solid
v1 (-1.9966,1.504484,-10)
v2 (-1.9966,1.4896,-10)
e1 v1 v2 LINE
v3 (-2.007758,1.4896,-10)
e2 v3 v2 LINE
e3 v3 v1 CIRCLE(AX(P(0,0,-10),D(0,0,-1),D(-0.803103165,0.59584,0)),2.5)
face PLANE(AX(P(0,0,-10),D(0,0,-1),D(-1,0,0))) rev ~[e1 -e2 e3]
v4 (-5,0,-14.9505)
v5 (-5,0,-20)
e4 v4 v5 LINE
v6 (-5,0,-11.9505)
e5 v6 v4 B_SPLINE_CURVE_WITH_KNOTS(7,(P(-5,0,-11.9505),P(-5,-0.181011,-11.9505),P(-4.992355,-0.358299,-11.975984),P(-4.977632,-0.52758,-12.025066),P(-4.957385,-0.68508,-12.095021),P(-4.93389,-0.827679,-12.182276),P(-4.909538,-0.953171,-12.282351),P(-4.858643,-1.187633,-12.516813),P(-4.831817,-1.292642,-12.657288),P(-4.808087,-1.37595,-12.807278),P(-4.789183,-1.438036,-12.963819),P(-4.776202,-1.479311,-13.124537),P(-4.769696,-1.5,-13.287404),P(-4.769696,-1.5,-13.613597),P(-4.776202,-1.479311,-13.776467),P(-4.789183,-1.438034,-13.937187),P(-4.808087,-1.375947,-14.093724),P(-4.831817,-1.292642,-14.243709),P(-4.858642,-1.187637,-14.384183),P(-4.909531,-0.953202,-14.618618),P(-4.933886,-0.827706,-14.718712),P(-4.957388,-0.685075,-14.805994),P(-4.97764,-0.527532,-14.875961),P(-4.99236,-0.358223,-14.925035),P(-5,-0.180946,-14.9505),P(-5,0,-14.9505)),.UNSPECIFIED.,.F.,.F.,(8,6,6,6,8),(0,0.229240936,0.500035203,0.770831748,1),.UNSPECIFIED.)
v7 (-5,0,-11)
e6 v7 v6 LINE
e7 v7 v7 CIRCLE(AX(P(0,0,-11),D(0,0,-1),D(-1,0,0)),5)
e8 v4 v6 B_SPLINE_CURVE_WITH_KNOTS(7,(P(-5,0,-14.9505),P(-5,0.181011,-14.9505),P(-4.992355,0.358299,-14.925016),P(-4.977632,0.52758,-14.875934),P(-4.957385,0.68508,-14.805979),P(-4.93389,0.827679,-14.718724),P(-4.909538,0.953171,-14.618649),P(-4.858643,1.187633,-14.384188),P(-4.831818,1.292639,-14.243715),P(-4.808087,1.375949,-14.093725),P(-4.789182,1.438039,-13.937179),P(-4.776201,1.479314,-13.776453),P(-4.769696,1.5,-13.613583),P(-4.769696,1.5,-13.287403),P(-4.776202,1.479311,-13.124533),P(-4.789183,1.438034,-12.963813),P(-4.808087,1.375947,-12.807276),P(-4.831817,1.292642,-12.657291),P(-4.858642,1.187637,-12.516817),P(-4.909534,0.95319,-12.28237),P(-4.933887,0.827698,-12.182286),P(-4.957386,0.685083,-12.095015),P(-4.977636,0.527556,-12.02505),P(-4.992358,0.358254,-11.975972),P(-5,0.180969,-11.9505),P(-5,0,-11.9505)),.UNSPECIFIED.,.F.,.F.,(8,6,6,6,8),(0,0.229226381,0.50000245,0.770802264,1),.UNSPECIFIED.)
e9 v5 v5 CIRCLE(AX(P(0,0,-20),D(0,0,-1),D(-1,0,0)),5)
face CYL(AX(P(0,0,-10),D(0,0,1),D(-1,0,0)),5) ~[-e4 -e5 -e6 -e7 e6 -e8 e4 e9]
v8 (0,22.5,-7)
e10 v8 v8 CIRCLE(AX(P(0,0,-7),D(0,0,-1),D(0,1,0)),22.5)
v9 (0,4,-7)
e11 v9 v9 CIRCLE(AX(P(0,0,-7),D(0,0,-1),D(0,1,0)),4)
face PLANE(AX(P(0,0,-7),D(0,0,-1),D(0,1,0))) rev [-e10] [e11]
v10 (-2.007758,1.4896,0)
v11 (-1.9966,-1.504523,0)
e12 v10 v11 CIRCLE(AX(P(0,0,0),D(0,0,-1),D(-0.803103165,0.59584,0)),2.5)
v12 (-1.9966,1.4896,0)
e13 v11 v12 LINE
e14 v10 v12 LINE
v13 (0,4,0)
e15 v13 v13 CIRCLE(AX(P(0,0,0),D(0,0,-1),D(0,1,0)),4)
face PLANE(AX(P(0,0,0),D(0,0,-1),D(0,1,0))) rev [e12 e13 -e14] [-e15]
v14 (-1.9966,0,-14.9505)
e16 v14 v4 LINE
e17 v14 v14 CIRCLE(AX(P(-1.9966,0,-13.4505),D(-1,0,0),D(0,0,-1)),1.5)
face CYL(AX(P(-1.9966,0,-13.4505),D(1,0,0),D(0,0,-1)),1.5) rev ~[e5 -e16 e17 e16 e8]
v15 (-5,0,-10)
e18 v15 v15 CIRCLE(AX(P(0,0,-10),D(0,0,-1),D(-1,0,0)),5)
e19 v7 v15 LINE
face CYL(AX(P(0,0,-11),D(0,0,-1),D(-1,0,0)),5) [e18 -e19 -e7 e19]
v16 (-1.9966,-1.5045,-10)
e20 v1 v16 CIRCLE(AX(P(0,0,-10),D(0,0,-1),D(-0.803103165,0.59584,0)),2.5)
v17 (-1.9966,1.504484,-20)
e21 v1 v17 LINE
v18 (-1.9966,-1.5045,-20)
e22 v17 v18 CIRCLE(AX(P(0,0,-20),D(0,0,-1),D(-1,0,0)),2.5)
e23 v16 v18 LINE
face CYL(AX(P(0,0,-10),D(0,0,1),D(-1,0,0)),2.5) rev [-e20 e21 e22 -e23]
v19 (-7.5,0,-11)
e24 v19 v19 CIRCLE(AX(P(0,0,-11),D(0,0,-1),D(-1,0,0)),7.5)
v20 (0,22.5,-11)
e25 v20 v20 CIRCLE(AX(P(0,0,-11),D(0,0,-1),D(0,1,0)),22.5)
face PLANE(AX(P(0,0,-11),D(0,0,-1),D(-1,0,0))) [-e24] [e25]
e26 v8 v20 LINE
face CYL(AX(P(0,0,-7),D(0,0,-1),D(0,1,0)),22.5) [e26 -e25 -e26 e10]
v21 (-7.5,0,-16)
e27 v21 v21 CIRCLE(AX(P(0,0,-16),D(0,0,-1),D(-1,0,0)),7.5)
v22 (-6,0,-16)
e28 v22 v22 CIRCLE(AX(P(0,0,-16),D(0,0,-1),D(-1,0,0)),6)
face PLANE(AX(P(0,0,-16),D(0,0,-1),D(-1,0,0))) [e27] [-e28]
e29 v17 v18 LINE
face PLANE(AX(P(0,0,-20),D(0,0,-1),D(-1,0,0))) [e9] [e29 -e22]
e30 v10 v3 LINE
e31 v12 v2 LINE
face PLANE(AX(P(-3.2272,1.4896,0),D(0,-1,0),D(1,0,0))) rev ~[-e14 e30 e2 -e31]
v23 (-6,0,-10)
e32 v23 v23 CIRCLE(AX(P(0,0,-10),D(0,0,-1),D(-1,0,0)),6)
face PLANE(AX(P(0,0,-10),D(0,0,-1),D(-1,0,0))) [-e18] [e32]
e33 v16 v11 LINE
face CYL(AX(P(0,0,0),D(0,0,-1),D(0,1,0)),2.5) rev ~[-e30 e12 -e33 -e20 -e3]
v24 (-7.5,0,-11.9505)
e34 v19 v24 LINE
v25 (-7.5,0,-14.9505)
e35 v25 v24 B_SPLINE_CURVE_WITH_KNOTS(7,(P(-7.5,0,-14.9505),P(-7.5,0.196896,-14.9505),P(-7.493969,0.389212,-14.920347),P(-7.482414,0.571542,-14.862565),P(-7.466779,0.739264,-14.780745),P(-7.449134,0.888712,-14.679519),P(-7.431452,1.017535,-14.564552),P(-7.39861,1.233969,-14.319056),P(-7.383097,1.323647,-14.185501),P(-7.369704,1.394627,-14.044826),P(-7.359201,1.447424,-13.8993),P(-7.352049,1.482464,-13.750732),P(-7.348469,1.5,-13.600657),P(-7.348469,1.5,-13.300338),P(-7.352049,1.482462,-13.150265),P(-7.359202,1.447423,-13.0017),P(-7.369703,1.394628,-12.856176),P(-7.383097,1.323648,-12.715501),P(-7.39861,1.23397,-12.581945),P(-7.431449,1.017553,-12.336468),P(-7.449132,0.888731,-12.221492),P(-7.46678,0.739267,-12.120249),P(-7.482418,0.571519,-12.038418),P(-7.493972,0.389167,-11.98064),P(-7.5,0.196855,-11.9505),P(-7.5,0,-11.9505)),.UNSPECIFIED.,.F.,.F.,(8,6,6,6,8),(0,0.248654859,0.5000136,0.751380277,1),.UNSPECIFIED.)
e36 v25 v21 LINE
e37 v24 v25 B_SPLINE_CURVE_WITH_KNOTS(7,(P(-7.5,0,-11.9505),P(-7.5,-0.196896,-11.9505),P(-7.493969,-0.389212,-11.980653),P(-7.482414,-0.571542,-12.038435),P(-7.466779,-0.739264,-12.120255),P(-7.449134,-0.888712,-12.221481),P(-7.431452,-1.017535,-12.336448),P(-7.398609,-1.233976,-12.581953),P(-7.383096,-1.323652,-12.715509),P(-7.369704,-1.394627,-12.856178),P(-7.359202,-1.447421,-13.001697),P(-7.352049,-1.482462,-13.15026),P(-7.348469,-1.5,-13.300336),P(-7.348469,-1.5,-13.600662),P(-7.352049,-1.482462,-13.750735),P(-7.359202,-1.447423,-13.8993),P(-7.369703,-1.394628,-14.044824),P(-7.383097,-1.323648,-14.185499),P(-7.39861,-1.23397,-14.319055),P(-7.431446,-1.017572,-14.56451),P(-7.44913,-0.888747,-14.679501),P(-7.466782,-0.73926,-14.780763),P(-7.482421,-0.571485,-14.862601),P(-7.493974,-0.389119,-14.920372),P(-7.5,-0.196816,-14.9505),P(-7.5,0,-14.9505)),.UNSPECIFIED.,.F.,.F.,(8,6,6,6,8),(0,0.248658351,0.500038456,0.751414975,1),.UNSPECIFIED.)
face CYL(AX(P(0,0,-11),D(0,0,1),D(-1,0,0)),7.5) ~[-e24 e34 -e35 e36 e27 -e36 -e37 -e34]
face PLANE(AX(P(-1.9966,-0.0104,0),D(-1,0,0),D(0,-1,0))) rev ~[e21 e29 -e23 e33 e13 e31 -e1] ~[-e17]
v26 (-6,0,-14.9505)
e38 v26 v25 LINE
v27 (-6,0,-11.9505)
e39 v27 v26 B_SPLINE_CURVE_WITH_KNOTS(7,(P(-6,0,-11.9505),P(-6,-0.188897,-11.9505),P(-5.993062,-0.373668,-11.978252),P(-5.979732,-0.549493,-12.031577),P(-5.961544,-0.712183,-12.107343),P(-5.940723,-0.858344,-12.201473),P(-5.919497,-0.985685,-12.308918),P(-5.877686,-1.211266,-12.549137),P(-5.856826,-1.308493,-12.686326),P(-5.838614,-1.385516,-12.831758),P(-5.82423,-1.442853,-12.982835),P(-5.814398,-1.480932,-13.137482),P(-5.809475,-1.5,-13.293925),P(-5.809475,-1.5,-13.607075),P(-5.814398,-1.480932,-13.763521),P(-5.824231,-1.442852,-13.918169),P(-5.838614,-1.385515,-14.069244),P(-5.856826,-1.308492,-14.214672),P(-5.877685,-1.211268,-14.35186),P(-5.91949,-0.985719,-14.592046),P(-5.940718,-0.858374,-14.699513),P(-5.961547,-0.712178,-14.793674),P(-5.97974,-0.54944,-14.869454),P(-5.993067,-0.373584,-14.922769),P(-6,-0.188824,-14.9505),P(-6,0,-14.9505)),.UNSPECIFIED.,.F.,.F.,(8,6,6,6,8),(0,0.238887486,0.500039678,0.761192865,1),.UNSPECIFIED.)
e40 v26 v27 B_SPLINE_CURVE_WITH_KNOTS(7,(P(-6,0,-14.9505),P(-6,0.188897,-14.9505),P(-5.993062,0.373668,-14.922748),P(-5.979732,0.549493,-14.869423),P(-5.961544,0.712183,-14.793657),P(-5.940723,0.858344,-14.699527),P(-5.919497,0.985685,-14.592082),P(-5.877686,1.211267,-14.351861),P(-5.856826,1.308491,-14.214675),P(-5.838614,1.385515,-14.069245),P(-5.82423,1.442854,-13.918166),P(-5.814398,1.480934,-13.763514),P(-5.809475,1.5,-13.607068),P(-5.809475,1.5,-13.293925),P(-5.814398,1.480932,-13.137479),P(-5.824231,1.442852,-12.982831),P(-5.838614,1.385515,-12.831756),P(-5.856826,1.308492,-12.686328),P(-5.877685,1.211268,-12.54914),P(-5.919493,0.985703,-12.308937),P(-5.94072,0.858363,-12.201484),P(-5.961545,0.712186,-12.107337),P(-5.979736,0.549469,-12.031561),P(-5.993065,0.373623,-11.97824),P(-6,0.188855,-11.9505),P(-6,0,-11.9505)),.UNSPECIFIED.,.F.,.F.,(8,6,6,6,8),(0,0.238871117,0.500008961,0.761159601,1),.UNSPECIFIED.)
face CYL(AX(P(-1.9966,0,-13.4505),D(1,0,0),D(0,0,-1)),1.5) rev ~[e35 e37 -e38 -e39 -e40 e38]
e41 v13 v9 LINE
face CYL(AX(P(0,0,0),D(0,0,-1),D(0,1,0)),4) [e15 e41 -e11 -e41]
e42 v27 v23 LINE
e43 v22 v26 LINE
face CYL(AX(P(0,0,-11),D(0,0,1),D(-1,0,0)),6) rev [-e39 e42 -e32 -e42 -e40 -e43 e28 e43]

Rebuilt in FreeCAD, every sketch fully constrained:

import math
import FreeCAD as App
import Part
import Sketcher

V = App.Vector
Q = App.Units.Quantity


def add_polygon(sketch, points):
    """Adds a closed chain of lines whose ends are joined by coincident constraints."""
    first, n = sketch.GeometryCount, len(points)
    for a, b in zip(points, points[1:] + points[:1]):
        sketch.addGeometry(Part.LineSegment(App.Vector(*a, 0), App.Vector(*b, 0)), False)
    for i in range(n):
        sketch.addConstraint(Sketcher.Constraint("Coincident", first + i, 2, first + (i + 1) % n, 1))

doc = App.newDocument("Part")
body = doc.addObject("PartDesign::Body", "Body")
body.AllowCompound = True

# Sketch on YZ plane
sketch1 = doc.addObject("Sketcher::SketchObject", "Sketch")
body.addObject(sketch1)
sketch1.AttachmentSupport = (doc.YZ_Plane, [""])
sketch1.MapMode = "FlatFace"
add_polygon(sketch1, [(4, 0), (2.5, 0), (2.5, -82), (4, -82), (4, -75), (22.5, -75), (22.5, -71), (9.5, -71), (9.5, -68), (6.5, -68), (6.5, -14), (9.5, -14), (9.5, -11), (22.5, -11), (22.5, -7), (4, -7)])  # lines 0-15
sketch1.addConstraint(Sketcher.Constraint("Horizontal", 0))
sketch1.addConstraint(Sketcher.Constraint("Vertical", 1))
sketch1.addConstraint(Sketcher.Constraint("Horizontal", 2))
sketch1.addConstraint(Sketcher.Constraint("Vertical", 3))
sketch1.addConstraint(Sketcher.Constraint("Horizontal", 4))
sketch1.addConstraint(Sketcher.Constraint("Vertical", 5))
sketch1.addConstraint(Sketcher.Constraint("Horizontal", 6))
sketch1.addConstraint(Sketcher.Constraint("Vertical", 7))
sketch1.addConstraint(Sketcher.Constraint("Horizontal", 8))
sketch1.addConstraint(Sketcher.Constraint("Vertical", 9))
sketch1.addConstraint(Sketcher.Constraint("Horizontal", 10))
sketch1.addConstraint(Sketcher.Constraint("Vertical", 11))
sketch1.addConstraint(Sketcher.Constraint("Horizontal", 12))
sketch1.addConstraint(Sketcher.Constraint("Vertical", 13))
sketch1.addConstraint(Sketcher.Constraint("Horizontal", 14))
sketch1.addConstraint(Sketcher.Constraint("Vertical", 15))
sketch1.addConstraint(Sketcher.Constraint("PointOnObject", 0, 2, -1))
sketch1.addConstraint(Sketcher.Constraint("Vertical", 7, 2, 10, 2))
sketch1.addConstraint(Sketcher.Constraint("Vertical", 5, 2, 12, 2))
sketch1.addConstraint(Sketcher.Constraint("Vertical", 3, 2, 14, 2))
sketch1.addConstraint(Sketcher.Constraint("Equal", 10, 7))
sketch1.addConstraint(Sketcher.Constraint("Equal", 7, 11))
sketch1.addConstraint(Sketcher.Constraint("Equal", 5, 13))
sketch1.addConstraint(Sketcher.Constraint("Equal", 3, 15))
sketch1.addConstraint(Sketcher.Constraint("DistanceX", 8, 2, 8, 1, Q("3 mm")))
sketch1.addConstraint(Sketcher.Constraint("DistanceY", 3, 1, 3, 2, Q("7 mm")))
sketch1.addConstraint(Sketcher.Constraint("DistanceY", 5, 1, 5, 2, Q("4 mm")))
sketch1.addConstraint(Sketcher.Constraint("DistanceX", -1, 1, 2, 2, Q("4 mm")))
sketch1.addConstraint(Sketcher.Constraint("DistanceX", 1, 2, 4, 2, Q("20 mm")))
sketch1.addConstraint(Sketcher.Constraint("DistanceX", 1, 2, 6, 2, Q("7 mm")))
sketch1.addConstraint(Sketcher.Constraint("DistanceX", -1, 1, 0, 2, Q("2.5 mm")))
sketch1.addConstraint(Sketcher.Constraint("DistanceY", 1, 2, 1, 1, Q("82 mm")))
revolution = doc.addObject("PartDesign::Revolution", "Revolution")
body.addObject(revolution)
revolution.Profile = sketch1
revolution.ReferenceAxis = (sketch1, ["V_Axis"])
revolution.Angle = 360

# Sketch on XZ plane
sketch2 = doc.addObject("Sketcher::SketchObject", "Sketch001")
body.addObject(sketch2)
sketch2.AttachmentSupport = (doc.XZ_Plane, [""])
sketch2.MapMode = "FlatFace"
add_polygon(sketch2, [(0, -60), (0, -64), (-11, -54), (-11, -49)])  # lines 0-3
sketch2.addConstraint(Sketcher.Constraint("Vertical", 0))
sketch2.addConstraint(Sketcher.Constraint("Vertical", 2))
sketch2.addConstraint(Sketcher.Constraint("PointOnObject", 0, 2, -2))
sketch2.addConstraint(Sketcher.Constraint("Parallel", 1, 3))
sketch2.addConstraint(Sketcher.Constraint("DistanceY", 0, 2, 0, 1, Q("5 mm")))
sketch2.addConstraint(Sketcher.Constraint("Distance", 1, Q("15 mm")))
sketch2.addConstraint(Sketcher.Constraint("Angle", 1, Q("135 deg")))
sketch2.addConstraint(Sketcher.Constraint("DistanceY", 0, 2, -1, 1, Q("64.5 mm")))
pocket1 = doc.addObject("PartDesign::Pocket", "Pocket")
body.addObject(pocket1)
pocket1.Profile = sketch2
pocket1.Length = 5
pocket1.Midplane = True

# Sketch on XY plane
sketch3 = doc.addObject("Sketcher::SketchObject", "Sketch002")
body.addObject(sketch3)
sketch3.AttachmentSupport = (doc.XY_Plane, [""])
sketch3.MapMode = "FlatFace"
add_polygon(sketch3, [(-3.2, -1.5), (-2, -1.5), (-2, 1.5), (-3.2, 1.5)])  # lines 0-3
sketch3.addConstraint(Sketcher.Constraint("Horizontal", 0))
sketch3.addConstraint(Sketcher.Constraint("Vertical", 1))
sketch3.addConstraint(Sketcher.Constraint("Horizontal", 2))
sketch3.addConstraint(Sketcher.Constraint("Vertical", 3))
sketch3.addConstraint(Sketcher.Constraint("DistanceY", 1, 1, 1, 2, Q("3 mm")))
sketch3.addConstraint(Sketcher.Constraint("DistanceX", 0, 1, 0, 2, Q("1.2306 mm")))
sketch3.addConstraint(Sketcher.Constraint("DistanceX", 0, 2, -1, 1, Q("1.9966 mm")))
sketch3.addConstraint(Sketcher.Constraint("DistanceY", 0, 2, -1, 1, Q("1.5104 mm")))
pad1 = doc.addObject("PartDesign::Pad", "Pad")
body.addObject(pad1)
pad1.Profile = sketch3
pad1.Length = 26
pad1.Reversed = True

# Sketch on XY plane
sketch4 = doc.addObject("Sketcher::SketchObject", "Sketch003")
body.addObject(sketch4)
sketch4.AttachmentSupport = (doc.XY_Plane, [""])
sketch4.MapMode = "FlatFace"
sketch4.AttachmentOffset = App.Placement(V(0, 0, -14), App.Rotation())
sketch4.addGeometry(Part.Circle(V(0, 0, 0), V(0, 0, 1), 6), False)
sketch4.addConstraint(Sketcher.Constraint("Coincident", 0, 3, -1, 1))
sketch4.addConstraint(Sketcher.Constraint("Diameter", 0, Q("13 mm")))
pocket2 = doc.addObject("PartDesign::Pocket", "Pocket001")
body.addObject(pocket2)
pocket2.Profile = sketch4
pocket2.Length = 4
pocket2.Reversed = True

# Sketch on XY plane
sketch5 = doc.addObject("Sketcher::SketchObject", "Sketch004")
body.addObject(sketch5)
sketch5.AttachmentSupport = (doc.XY_Plane, [""])
sketch5.MapMode = "FlatFace"
sketch5.AttachmentOffset = App.Placement(V(0, 0, -14), App.Rotation())
sketch5.addGeometry(Part.Circle(V(0, 0, 0), V(0, 0, 1), 22), False)
sketch5.addConstraint(Sketcher.Constraint("Coincident", 0, 3, -1, 1))
sketch5.addConstraint(Sketcher.Constraint("Diameter", 0, Q("45 mm")))
pocket3 = doc.addObject("PartDesign::Pocket", "Pocket002")
body.addObject(pocket3)
pocket3.Profile = sketch5
pocket3.Length = 400

# Sketch on XY plane
sketch6 = doc.addObject("Sketcher::SketchObject", "Sketch005")
body.addObject(sketch6)
sketch6.AttachmentSupport = (doc.XY_Plane, [""])
sketch6.MapMode = "FlatFace"
sketch6.AttachmentOffset = App.Placement(V(0, 0, -14), App.Rotation())
sketch6.addGeometry(Part.Circle(V(0, 0, 0), V(0, 0, 1), 10), False)
sketch6.addGeometry(Part.Circle(V(0, 0, 0), V(0, 0, 1), 6), False)
sketch6.addConstraint(Sketcher.Constraint("Coincident", 0, 3, -1, 1))
sketch6.addConstraint(Sketcher.Constraint("Coincident", 1, 3, -1, 1))
sketch6.addConstraint(Sketcher.Constraint("Diameter", 0, Q("19 mm")))
sketch6.addConstraint(Sketcher.Constraint("Diameter", 1, Q("13 mm")))
pocket4 = doc.addObject("PartDesign::Pocket", "Pocket003")
body.addObject(pocket4)
pocket4.Profile = sketch6
pocket4.Length = 5
pocket4.Reversed = True

# Sketch on XY plane
sketch7 = doc.addObject("Sketcher::SketchObject", "Sketch006")
body.addObject(sketch7)
sketch7.AttachmentSupport = (doc.XY_Plane, [""])
sketch7.MapMode = "FlatFace"
sketch7.AttachmentOffset = App.Placement(V(0, 0, -10), App.Rotation())
sketch7.addGeometry(Part.Circle(V(0, 0, 0), V(0, 0, 1), 5), False)
sketch7.addGeometry(Part.ArcOfCircle(Part.Circle(V(0, 0, 0), V(0, 0, 1), 2.5), math.radians(-143), math.radians(143)), False)
sketch7.addGeometry(Part.LineSegment(V(-2, -1.5, 0), V(-2, 1.5, 0)), False)
sketch7.addConstraint(Sketcher.Constraint("Coincident", 1, 1, 2, 1))
sketch7.addConstraint(Sketcher.Constraint("Coincident", 2, 2, 1, 2))
sketch7.addConstraint(Sketcher.Constraint("Vertical", 2))
sketch7.addConstraint(Sketcher.Constraint("Coincident", 0, 3, -1, 1))
sketch7.addConstraint(Sketcher.Constraint("Coincident", 1, 3, -1, 1))
sketch7.addConstraint(Sketcher.Constraint("Diameter", 0, Q("10 mm")))
sketch7.addConstraint(Sketcher.Constraint("Radius", 1, Q("2.5 mm")))
sketch7.addConstraint(Sketcher.Constraint("DistanceY", 2, 1, 2, 2, Q("3.009 mm")))
pad2 = doc.addObject("PartDesign::Pad", "Pad001")
body.addObject(pad2)
pad2.Profile = sketch7
pad2.Length = 10
pad2.Reversed = True

# Sketch on XY plane
sketch8 = doc.addObject("Sketcher::SketchObject", "Sketch007")
body.addObject(sketch8)
sketch8.AttachmentSupport = (doc.XY_Plane, [""])
sketch8.MapMode = "FlatFace"
sketch8.AttachmentOffset = App.Placement(V(0, 0, -9), App.Rotation())
sketch8.addGeometry(Part.Circle(V(0, 0, 0), V(0, 0, 1), 10), False)
sketch8.addGeometry(Part.Circle(V(0, 0, 0), V(0, 0, 1), 5), False)
sketch8.addConstraint(Sketcher.Constraint("Coincident", 0, 3, -1, 1))
sketch8.addConstraint(Sketcher.Constraint("Coincident", 1, 3, -1, 1))
sketch8.addConstraint(Sketcher.Constraint("Diameter", 0, Q("19 mm")))
sketch8.addConstraint(Sketcher.Constraint("Diameter", 1, Q("10 mm")))
pad3 = doc.addObject("PartDesign::Pad", "Pad002")
body.addObject(pad3)
pad3.Profile = sketch8
pad3.Length = 2
pad3.Reversed = True

# Sketch on XY plane
sketch9 = doc.addObject("Sketcher::SketchObject", "Sketch008")
body.addObject(sketch9)
sketch9.AttachmentSupport = (doc.XY_Plane, [""])
sketch9.MapMode = "FlatFace"
sketch9.AttachmentOffset = App.Placement(V(0, 0, -11), App.Rotation())
sketch9.addGeometry(Part.Circle(V(0, 0, 0), V(0, 0, 1), 6), False)
sketch9.addGeometry(Part.Circle(V(0, 0, 0), V(0, 0, 1), 5), False)
sketch9.addConstraint(Sketcher.Constraint("Coincident", 0, 3, -1, 1))
sketch9.addConstraint(Sketcher.Constraint("Coincident", 1, 3, -1, 1))
sketch9.addConstraint(Sketcher.Constraint("Diameter", 0, Q("12 mm")))
sketch9.addConstraint(Sketcher.Constraint("Diameter", 1, Q("10 mm")))
pocket5 = doc.addObject("PartDesign::Pocket", "Pocket004")
body.addObject(pocket5)
pocket5.Profile = sketch9
pocket5.Length = 1
pocket5.Reversed = True

# Sketch on XY plane
sketch10 = doc.addObject("Sketcher::SketchObject", "Sketch009")
body.addObject(sketch10)
sketch10.AttachmentSupport = (doc.XY_Plane, [""])
sketch10.MapMode = "FlatFace"
sketch10.AttachmentOffset = App.Placement(V(0, 0, -11), App.Rotation())
sketch10.addGeometry(Part.Circle(V(0, 0, 0), V(0, 0, 1), 8), False)
sketch10.addGeometry(Part.Circle(V(0, 0, 0), V(0, 0, 1), 6), False)
sketch10.addConstraint(Sketcher.Constraint("Coincident", 0, 3, -1, 1))
sketch10.addConstraint(Sketcher.Constraint("Coincident", 1, 3, -1, 1))
sketch10.addConstraint(Sketcher.Constraint("Diameter", 0, Q("15 mm")))
sketch10.addConstraint(Sketcher.Constraint("Diameter", 1, Q("12 mm")))
pad4 = doc.addObject("PartDesign::Pad", "Pad003")
body.addObject(pad4)
pad4.Profile = sketch10
pad4.Length = 5
pad4.Reversed = True

# Sketch on YZ plane
sketch11 = doc.addObject("Sketcher::SketchObject", "Sketch010")
body.addObject(sketch11)
sketch11.AttachmentSupport = (doc.YZ_Plane, [""])
sketch11.MapMode = "FlatFace"
sketch11.AttachmentOffset = App.Placement(V(0, 0, -1.9966), App.Rotation())
sketch11.addGeometry(Part.Circle(V(0, -13.5, 0), V(0, 0, 1), 1.5), False)
sketch11.addConstraint(Sketcher.Constraint("PointOnObject", 0, 3, -2))
sketch11.addConstraint(Sketcher.Constraint("Diameter", 0, Q("3 mm")))
sketch11.addConstraint(Sketcher.Constraint("DistanceY", 0, 3, -1, 1, Q("13.4505 mm")))
pocket6 = doc.addObject("PartDesign::Pocket", "Pocket005")
body.addObject(pocket6)
pocket6.Profile = sketch11
pocket6.Length = 20

doc.recompute()
